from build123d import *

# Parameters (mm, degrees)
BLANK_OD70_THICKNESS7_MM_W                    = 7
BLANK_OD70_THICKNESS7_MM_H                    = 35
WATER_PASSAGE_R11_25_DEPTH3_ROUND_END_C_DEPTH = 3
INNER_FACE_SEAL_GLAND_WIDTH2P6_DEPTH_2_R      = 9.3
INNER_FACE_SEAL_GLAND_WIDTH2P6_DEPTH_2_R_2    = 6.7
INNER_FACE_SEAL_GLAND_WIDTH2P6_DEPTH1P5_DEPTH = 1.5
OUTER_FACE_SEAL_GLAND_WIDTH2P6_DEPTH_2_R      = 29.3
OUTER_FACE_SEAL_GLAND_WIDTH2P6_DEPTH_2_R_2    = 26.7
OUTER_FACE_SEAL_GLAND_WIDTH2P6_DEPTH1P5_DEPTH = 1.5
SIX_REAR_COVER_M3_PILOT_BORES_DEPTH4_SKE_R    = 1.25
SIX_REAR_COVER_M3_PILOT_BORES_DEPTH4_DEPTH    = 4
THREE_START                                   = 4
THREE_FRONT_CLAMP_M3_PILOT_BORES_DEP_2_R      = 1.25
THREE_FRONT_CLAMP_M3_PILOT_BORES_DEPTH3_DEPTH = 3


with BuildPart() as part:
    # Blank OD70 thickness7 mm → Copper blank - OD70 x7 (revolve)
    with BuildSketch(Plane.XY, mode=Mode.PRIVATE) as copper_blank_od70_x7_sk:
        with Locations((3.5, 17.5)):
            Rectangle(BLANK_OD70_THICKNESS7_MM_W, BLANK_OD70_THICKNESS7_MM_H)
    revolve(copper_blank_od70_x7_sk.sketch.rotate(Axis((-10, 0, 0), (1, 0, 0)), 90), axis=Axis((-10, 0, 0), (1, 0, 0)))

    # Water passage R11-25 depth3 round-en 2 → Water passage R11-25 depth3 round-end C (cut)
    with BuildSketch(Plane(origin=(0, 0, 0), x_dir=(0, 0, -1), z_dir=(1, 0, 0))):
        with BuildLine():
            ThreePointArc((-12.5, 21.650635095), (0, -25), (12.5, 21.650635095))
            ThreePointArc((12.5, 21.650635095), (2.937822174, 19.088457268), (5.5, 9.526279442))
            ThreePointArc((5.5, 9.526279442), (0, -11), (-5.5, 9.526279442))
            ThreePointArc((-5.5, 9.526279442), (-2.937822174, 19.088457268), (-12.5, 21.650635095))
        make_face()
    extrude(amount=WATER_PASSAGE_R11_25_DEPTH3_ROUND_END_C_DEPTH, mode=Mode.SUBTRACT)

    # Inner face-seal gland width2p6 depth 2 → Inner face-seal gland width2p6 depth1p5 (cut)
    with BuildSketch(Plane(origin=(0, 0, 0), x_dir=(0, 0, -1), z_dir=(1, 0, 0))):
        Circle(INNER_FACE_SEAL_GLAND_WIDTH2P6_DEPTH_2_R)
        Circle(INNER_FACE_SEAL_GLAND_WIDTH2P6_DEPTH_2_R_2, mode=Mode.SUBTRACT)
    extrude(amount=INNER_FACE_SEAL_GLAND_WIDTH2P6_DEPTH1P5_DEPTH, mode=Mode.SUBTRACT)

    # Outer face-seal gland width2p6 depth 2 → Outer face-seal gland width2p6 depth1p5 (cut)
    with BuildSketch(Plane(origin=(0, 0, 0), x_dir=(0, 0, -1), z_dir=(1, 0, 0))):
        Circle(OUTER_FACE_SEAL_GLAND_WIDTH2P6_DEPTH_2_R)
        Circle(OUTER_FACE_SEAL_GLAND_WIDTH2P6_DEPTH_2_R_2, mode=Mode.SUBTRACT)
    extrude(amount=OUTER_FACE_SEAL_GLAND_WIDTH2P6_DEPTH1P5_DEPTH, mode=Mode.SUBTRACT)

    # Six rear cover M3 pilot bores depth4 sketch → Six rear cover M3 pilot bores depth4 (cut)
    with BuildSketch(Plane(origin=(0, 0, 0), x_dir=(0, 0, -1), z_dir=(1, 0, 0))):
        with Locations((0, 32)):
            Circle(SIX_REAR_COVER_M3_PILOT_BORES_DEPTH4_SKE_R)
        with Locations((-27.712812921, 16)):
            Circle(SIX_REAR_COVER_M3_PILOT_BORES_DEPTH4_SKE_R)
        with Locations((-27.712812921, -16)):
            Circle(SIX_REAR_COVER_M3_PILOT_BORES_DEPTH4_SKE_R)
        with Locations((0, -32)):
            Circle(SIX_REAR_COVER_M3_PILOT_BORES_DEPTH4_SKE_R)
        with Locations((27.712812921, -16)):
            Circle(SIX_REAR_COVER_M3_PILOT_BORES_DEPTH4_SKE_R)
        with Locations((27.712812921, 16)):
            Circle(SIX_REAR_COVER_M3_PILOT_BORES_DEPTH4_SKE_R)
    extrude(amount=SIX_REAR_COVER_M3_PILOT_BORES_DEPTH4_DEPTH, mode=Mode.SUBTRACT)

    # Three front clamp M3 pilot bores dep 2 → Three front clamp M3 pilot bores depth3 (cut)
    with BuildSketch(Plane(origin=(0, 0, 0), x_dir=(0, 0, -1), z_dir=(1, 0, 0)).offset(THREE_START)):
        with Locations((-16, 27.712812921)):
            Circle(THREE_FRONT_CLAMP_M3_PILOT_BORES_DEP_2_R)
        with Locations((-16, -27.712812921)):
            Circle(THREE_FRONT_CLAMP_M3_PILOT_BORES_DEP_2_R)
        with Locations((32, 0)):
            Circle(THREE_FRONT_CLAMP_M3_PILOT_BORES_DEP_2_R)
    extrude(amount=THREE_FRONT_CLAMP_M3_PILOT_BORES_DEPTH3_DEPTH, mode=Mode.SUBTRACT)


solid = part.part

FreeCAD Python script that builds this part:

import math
import FreeCAD as App
import Part
import Sketcher
from FreeCAD import Vector

doc = App.newDocument("Part")
body = doc.addObject("PartDesign::Body", "Body")

# Sketch on XY plane
sketch1 = body.newObject("Sketcher::SketchObject", "Sketch")
sketch1.AttachmentSupport = (doc.getObject("XY_Plane"), [""])
sketch1.MapMode = "FlatFace"
sketch1.addGeometry(Part.LineSegment(Vector(0, 35, 0), Vector(0, 0, 0)), False)
sketch1.addGeometry(Part.LineSegment(Vector(0, 0, 0), Vector(7, 0, 0)), False)
sketch1.addGeometry(Part.LineSegment(Vector(7, 0, 0), Vector(7, 35, 0)), False)
sketch1.addGeometry(Part.LineSegment(Vector(7, 35, 0), Vector(0, 35, 0)), False)
sketch1.addConstraint(Sketcher.Constraint("Coincident", 0, 2, 1, 1))
sketch1.addConstraint(Sketcher.Constraint("Coincident", 1, 2, 2, 1))
sketch1.addConstraint(Sketcher.Constraint("Coincident", 2, 2, 3, 1))
sketch1.addConstraint(Sketcher.Constraint("Coincident", 3, 2, 0, 1))
sketch1.addConstraint(Sketcher.Constraint("Vertical", 0))
sketch1.addConstraint(Sketcher.Constraint("Horizontal", 1))
sketch1.addConstraint(Sketcher.Constraint("Vertical", 2))
sketch1.addConstraint(Sketcher.Constraint("Horizontal", 3))
sketch1.addConstraint(Sketcher.Constraint("Coincident", 0, 2, -1, 1))
sketch1.addConstraint(Sketcher.Constraint("DistanceX", 1, 1, 1, 2, 7.0))
sketch1.addConstraint(Sketcher.Constraint("DistanceY", 0, 2, 0, 1, 35.0))
revolution = body.newObject("PartDesign::Revolution", "Revolution")
revolution.Profile = sketch1
revolution.ReferenceAxis = (sketch1, ["H_Axis"])
revolution.Angle = 360

# Sketch on YZ plane
sketch2 = body.newObject("Sketcher::SketchObject", "Sketch001")
sketch2.AttachmentSupport = (doc.getObject("YZ_Plane"), [""])
sketch2.MapMode = "FlatFace"
sketch2.addGeometry(Part.ArcOfCircle(Part.Circle(Vector(0, 0, 0), Vector(0, 0, 1), 25), math.radians(30), math.radians(330)), False)
sketch2.addGeometry(Part.ArcOfCircle(Part.Circle(Vector(16, -9, 0), Vector(0, 0, 1), 7), math.radians(-30), math.radians(150)), False)
sketch2.addGeometry(Part.ArcOfCircle(Part.Circle(Vector(0, 0, 0), Vector(0, 0, 1), 11), math.radians(30), math.radians(330)), False)
sketch2.addGeometry(Part.ArcOfCircle(Part.Circle(Vector(16, 9, 0), Vector(0, 0, 1), 7), math.radians(-150), math.radians(30)), False)
sketch2.addConstraint(Sketcher.Constraint("Tangent", 0, 2, 1, 1))
sketch2.addConstraint(Sketcher.Constraint("Tangent", 1, 2, 2, 2))
sketch2.addConstraint(Sketcher.Constraint("Tangent", 2, 1, 3, 1))
sketch2.addConstraint(Sketcher.Constraint("Tangent", 3, 2, 0, 1))
sketch2.addConstraint(Sketcher.Constraint("Coincident", 0, 3, -1, 1))
sketch2.addConstraint(Sketcher.Constraint("Coincident", 2, 3, -1, 1))
sketch2.addConstraint(Sketcher.Constraint("Vertical", 1, 3, 3, 3))
sketch2.addConstraint(Sketcher.Constraint("Radius", 0, 25.0))
sketch2.addConstraint(Sketcher.Constraint("Radius", 1, 7.0))
sketch2.addConstraint(Sketcher.Constraint("DistanceY", 1, 3, -1, 1, 9.0))
pocket1 = body.newObject("PartDesign::Pocket", "Pocket")
pocket1.Profile = sketch2
pocket1.Length = 3
pocket1.Reversed = True

# Sketch on YZ plane
sketch3 = body.newObject("Sketcher::SketchObject", "Sketch002")
sketch3.AttachmentSupport = (doc.getObject("YZ_Plane"), [""])
sketch3.MapMode = "FlatFace"
sketch3.addGeometry(Part.Circle(Vector(0, 0, 0), Vector(0, 0, 1), 9), False)
sketch3.addGeometry(Part.Circle(Vector(0, 0, 0), Vector(0, 0, 1), 7), False)
sketch3.addConstraint(Sketcher.Constraint("Coincident", 0, 3, -1, 1))
sketch3.addConstraint(Sketcher.Constraint("Coincident", 1, 3, -1, 1))
sketch3.addConstraint(Sketcher.Constraint("Diameter", 0, 18.6))
sketch3.addConstraint(Sketcher.Constraint("Diameter", 1, 13.4))
pocket2 = body.newObject("PartDesign::Pocket", "Pocket001")
pocket2.Profile = sketch3
pocket2.Length = 1.5
pocket2.Reversed = True

# Sketch on YZ plane
sketch4 = body.newObject("Sketcher::SketchObject", "Sketch003")
sketch4.AttachmentSupport = (doc.getObject("YZ_Plane"), [""])
sketch4.MapMode = "FlatFace"
sketch4.addGeometry(Part.Circle(Vector(0, 0, 0), Vector(0, 0, 1), 29), False)
sketch4.addGeometry(Part.Circle(Vector(0, 0, 0), Vector(0, 0, 1), 27), False)
sketch4.addConstraint(Sketcher.Constraint("Coincident", 0, 3, -1, 1))
sketch4.addConstraint(Sketcher.Constraint("Coincident", 1, 3, -1, 1))
sketch4.addConstraint(Sketcher.Constraint("Diameter", 0, 58.6))
sketch4.addConstraint(Sketcher.Constraint("Diameter", 1, 53.4))
pocket3 = body.newObject("PartDesign::Pocket", "Pocket002")
pocket3.Profile = sketch4
pocket3.Length = 1.5
pocket3.Reversed = True

# Sketch on YZ plane
sketch5 = body.newObject("Sketcher::SketchObject", "Sketch004")
sketch5.AttachmentSupport = (doc.getObject("YZ_Plane"), [""])
sketch5.MapMode = "FlatFace"
sketch5.addGeometry(Part.Circle(Vector(32, 0, 0), Vector(0, 0, 1), 1.2), False)
sketch5.addGeometry(Part.Circle(Vector(16, 27.7, 0), Vector(0, 0, 1), 1.2), False)
sketch5.addGeometry(Part.Circle(Vector(-16, 27.7, 0), Vector(0, 0, 1), 1.2), False)
sketch5.addGeometry(Part.Circle(Vector(-32, 0, 0), Vector(0, 0, 1), 1.2), False)
sketch5.addGeometry(Part.Circle(Vector(-16, -27.7, 0), Vector(0, 0, 1), 1.2), False)
sketch5.addGeometry(Part.Circle(Vector(16, -27.7, 0), Vector(0, 0, 1), 1.2), False)
sketch5.addConstraint(Sketcher.Constraint("Equal", 0, 1))
sketch5.addConstraint(Sketcher.Constraint("Equal", 1, 2))
sketch5.addConstraint(Sketcher.Constraint("Equal", 2, 3))
sketch5.addConstraint(Sketcher.Constraint("Equal", 3, 4))
sketch5.addConstraint(Sketcher.Constraint("Equal", 4, 5))
sketch5.addConstraint(Sketcher.Constraint("Symmetric", 0, 3, 3, 3, -1, 1))
sketch5.addConstraint(Sketcher.Constraint("Symmetric", 1, 3, 4, 3, -1, 1))
sketch5.addConstraint(Sketcher.Constraint("Symmetric", 2, 3, 5, 3, -1, 1))
sketch5.addConstraint(Sketcher.Constraint("Symmetric", 1, 3, 2, 3, -2))
sketch5.addConstraint(Sketcher.Constraint("PointOnObject", 0, 3, -1))
sketch5.addConstraint(Sketcher.Constraint("Diameter", 0, 2.5))
sketch5.addConstraint(Sketcher.Constraint("DistanceX", -1, 1, 0, 3, 32.0))
sketch5.addConstraint(Sketcher.Constraint("DistanceX", -1, 1, 1, 3, 16.0))
sketch5.addConstraint(Sketcher.Constraint("DistanceY", -1, 1, 1, 3, 27.712813))
pocket4 = body.newObject("PartDesign::Pocket", "Pocket003")
pocket4.Profile = sketch5
pocket4.Length = 4
pocket4.Reversed = True

# Sketch on YZ plane
sketch6 = body.newObject("Sketcher::SketchObject", "Sketch005")
sketch6.AttachmentSupport = (doc.getObject("YZ_Plane"), [""])
sketch6.MapMode = "FlatFace"
sketch6.AttachmentOffset = App.Placement(Vector(0, 0, 4), App.Rotation())
sketch6.addGeometry(Part.Circle(Vector(27.7, 16, 0), Vector(0, 0, 1), 1.2), False)
sketch6.addGeometry(Part.Circle(Vector(-27.7, 16, 0), Vector(0, 0, 1), 1.2), False)
sketch6.addGeometry(Part.Circle(Vector(0, -32, 0), Vector(0, 0, 1), 1.2), False)
sketch6.addConstraint(Sketcher.Constraint("Equal", 0, 1))
sketch6.addConstraint(Sketcher.Constraint("Equal", 1, 2))
sketch6.addConstraint(Sketcher.Constraint("Symmetric", 0, 3, 1, 3, -2))
sketch6.addConstraint(Sketcher.Constraint("PointOnObject", 2, 3, -2))
sketch6.addConstraint(Sketcher.Constraint("Diameter", 0, 2.5))
sketch6.addConstraint(Sketcher.Constraint("DistanceY", -1, 1, 0, 3, 16.0))
sketch6.addConstraint(Sketcher.Constraint("DistanceY", 2, 3, -1, 1, 32.0))
sketch6.addConstraint(Sketcher.Constraint("DistanceX", -1, 1, 0, 3, 27.712813))
pocket5 = body.newObject("PartDesign::Pocket", "Pocket004")
pocket5.Profile = sketch6
pocket5.Length = 3
pocket5.Reversed = True

doc.recompute()
